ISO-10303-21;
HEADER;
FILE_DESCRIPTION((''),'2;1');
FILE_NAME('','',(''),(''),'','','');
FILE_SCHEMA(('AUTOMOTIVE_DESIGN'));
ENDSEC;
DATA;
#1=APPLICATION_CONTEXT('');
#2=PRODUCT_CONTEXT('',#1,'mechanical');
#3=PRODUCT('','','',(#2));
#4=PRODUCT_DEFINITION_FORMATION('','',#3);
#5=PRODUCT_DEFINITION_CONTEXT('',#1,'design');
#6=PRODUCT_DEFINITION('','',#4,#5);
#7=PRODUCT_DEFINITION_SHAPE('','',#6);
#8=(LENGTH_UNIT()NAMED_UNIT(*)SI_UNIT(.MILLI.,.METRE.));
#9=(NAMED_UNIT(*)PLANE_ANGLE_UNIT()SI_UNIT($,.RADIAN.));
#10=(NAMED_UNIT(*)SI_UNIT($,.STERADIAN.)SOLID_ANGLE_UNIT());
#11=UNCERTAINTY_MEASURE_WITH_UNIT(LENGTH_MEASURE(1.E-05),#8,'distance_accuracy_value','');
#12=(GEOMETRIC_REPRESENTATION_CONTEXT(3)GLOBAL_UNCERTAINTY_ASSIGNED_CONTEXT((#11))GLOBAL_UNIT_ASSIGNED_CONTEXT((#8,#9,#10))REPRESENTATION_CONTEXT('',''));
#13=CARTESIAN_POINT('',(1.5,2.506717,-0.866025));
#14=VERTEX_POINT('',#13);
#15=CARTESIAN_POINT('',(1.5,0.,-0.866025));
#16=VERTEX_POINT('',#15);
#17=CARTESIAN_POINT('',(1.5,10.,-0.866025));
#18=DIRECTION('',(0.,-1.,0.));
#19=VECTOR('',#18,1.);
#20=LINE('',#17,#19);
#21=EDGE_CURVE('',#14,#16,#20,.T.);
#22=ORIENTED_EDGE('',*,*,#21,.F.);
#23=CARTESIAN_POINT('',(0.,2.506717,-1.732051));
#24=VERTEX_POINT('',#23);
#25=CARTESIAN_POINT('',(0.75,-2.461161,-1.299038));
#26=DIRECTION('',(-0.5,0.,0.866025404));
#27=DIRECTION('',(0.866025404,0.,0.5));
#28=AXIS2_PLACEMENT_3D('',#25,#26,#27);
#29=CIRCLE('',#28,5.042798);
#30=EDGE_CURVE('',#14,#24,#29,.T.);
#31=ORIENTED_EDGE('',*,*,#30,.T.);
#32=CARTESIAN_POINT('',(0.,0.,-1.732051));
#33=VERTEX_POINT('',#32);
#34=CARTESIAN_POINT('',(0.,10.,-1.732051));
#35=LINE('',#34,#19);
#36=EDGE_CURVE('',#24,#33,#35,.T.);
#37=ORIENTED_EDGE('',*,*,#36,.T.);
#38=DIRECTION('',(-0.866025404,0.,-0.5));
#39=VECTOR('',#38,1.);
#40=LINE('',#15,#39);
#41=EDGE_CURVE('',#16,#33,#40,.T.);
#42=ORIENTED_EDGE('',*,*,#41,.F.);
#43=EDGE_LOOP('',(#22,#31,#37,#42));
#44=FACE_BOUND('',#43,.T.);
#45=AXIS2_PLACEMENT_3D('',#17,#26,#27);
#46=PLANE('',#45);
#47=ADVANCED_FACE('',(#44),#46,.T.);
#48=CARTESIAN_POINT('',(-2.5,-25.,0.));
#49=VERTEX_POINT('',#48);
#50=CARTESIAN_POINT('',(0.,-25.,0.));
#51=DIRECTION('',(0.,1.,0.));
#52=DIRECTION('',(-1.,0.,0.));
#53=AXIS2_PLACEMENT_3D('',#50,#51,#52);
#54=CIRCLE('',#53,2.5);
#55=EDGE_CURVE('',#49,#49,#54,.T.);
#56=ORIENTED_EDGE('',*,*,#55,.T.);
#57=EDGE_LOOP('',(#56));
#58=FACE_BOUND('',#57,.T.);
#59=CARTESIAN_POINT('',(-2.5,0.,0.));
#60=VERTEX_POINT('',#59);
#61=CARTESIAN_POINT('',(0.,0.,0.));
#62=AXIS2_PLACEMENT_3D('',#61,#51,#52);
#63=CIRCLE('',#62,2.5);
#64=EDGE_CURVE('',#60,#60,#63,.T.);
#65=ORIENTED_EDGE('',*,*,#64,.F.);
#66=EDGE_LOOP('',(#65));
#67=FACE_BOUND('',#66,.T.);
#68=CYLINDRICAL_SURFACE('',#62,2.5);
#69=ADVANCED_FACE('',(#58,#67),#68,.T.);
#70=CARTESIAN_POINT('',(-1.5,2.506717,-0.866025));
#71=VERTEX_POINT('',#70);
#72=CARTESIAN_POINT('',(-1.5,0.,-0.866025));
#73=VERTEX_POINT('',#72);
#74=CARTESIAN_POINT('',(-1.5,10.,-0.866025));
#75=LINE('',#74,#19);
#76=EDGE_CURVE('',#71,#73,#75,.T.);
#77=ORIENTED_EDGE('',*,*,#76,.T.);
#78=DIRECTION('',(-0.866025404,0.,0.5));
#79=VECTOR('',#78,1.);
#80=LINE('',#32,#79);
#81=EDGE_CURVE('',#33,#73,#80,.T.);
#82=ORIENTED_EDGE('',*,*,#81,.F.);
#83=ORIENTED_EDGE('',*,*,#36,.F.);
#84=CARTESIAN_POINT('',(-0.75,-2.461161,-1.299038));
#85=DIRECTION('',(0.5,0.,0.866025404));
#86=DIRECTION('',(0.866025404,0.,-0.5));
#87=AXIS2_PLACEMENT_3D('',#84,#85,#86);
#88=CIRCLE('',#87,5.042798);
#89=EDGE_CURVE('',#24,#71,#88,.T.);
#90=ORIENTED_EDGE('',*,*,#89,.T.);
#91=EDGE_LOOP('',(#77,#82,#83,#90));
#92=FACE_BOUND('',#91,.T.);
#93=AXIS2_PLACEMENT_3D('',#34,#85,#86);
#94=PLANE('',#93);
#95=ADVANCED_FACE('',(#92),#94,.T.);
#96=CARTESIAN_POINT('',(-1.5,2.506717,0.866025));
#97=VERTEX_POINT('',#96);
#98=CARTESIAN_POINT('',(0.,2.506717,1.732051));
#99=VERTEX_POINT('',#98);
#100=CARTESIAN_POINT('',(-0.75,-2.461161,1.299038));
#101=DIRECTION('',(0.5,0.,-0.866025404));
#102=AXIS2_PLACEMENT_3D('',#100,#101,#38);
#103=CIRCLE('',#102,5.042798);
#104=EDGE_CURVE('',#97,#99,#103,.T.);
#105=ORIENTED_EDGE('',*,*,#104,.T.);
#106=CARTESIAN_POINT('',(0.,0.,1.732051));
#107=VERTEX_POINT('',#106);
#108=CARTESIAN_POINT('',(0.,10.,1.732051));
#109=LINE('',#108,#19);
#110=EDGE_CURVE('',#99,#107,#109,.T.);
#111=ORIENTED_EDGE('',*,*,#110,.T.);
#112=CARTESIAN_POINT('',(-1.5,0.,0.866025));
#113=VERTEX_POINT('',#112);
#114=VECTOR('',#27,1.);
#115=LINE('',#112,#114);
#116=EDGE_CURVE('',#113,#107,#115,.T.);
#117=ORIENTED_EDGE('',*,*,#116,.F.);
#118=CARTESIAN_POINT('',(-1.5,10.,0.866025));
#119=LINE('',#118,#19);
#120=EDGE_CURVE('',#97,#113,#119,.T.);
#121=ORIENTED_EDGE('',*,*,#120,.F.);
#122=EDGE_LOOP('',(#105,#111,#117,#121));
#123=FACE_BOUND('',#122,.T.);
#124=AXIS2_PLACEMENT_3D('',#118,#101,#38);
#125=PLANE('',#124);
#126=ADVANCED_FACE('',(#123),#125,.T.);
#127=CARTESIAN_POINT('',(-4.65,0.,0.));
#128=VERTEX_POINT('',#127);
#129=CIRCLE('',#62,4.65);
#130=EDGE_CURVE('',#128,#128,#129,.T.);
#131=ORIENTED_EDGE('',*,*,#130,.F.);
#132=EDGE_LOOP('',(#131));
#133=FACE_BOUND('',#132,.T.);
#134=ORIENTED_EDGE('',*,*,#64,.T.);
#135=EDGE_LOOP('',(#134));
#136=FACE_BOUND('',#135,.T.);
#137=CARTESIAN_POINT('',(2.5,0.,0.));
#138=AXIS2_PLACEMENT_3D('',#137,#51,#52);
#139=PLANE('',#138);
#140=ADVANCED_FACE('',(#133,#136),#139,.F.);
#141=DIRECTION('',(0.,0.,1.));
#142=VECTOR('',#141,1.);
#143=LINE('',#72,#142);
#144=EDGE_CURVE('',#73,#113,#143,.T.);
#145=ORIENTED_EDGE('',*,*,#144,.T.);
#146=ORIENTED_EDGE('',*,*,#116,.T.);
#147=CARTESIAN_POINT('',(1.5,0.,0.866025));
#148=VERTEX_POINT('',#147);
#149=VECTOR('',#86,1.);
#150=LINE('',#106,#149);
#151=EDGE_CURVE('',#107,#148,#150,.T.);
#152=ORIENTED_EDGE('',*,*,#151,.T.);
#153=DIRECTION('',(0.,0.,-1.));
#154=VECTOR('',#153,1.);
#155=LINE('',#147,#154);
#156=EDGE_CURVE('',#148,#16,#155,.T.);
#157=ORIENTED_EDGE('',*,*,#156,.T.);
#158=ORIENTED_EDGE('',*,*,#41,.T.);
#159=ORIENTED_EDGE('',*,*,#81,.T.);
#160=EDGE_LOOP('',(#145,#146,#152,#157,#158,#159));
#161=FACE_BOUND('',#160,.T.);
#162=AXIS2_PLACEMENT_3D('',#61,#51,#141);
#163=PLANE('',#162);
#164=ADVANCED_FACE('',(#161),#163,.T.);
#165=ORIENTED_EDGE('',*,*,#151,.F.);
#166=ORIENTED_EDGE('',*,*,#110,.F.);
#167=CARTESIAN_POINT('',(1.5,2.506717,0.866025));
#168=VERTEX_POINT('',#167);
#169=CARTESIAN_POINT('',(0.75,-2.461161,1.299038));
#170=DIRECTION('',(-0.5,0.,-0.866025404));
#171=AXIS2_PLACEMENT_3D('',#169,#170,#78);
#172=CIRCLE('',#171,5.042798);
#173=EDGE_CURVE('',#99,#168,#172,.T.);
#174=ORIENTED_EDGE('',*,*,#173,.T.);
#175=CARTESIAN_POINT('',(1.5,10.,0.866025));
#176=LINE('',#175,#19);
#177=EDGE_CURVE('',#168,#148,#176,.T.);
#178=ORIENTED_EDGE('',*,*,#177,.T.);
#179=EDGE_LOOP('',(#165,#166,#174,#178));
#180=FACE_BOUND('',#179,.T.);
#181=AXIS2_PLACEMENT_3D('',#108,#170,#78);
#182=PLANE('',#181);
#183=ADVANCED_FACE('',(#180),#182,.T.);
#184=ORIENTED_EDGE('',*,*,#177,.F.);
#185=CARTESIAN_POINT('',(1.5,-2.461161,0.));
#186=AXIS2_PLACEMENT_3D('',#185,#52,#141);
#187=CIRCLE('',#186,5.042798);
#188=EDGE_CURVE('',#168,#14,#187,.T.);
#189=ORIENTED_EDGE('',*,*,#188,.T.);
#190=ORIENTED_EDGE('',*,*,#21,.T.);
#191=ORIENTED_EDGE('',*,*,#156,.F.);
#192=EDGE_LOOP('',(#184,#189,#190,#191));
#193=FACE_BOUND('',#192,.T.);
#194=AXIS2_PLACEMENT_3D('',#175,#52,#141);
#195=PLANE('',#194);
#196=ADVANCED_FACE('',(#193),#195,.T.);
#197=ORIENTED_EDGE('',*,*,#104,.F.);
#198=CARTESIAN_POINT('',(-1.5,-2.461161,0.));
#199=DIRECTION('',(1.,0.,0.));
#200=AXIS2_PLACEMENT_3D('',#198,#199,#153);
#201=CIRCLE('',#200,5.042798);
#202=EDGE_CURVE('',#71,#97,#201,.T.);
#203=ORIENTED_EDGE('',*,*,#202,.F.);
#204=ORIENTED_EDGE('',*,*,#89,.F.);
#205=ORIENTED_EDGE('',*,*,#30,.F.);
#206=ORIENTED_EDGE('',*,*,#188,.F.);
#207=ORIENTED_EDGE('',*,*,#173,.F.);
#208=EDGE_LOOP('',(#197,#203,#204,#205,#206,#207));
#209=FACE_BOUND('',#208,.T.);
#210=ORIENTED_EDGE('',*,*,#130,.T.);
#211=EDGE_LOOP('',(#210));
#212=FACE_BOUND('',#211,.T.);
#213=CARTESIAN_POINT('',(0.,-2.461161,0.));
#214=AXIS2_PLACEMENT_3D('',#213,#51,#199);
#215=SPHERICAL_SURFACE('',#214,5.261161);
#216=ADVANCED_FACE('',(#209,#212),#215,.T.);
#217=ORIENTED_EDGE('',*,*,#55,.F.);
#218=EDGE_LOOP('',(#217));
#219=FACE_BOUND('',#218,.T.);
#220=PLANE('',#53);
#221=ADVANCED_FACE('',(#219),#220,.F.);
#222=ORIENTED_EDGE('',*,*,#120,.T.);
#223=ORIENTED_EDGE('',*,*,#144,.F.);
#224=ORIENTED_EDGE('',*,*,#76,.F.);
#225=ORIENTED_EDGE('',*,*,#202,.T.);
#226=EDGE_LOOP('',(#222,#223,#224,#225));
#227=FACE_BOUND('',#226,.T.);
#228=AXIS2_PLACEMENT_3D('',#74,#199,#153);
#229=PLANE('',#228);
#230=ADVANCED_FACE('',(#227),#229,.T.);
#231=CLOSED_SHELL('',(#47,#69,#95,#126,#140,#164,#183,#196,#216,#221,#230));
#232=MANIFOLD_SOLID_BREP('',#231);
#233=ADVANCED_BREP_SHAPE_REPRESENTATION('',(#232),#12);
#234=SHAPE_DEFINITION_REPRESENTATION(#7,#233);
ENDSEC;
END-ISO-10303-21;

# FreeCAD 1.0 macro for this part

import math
import FreeCAD as App
import Part
import Sketcher
from FreeCAD import Vector
Q = App.Units.Quantity

doc = App.newDocument("Part")
body = doc.addObject("PartDesign::Body", "Body")

# Sketch on XY plane
sketch1 = body.newObject("Sketcher::SketchObject", "Sketch")
sketch1.AttachmentSupport = (doc.getObject("XY_Plane"), [""])
sketch1.MapMode = "FlatFace"
sketch1.addGeometry(Part.LineSegment(Vector(0, -25, 0), Vector(2.5, -25, 0)), False)
sketch1.addGeometry(Part.LineSegment(Vector(2.5, -25, 0), Vector(2.5, 0, 0)), False)
sketch1.addGeometry(Part.LineSegment(Vector(2.5, 0, 0), Vector(4.7, 0, 0)), False)
sketch1.addGeometry(Part.ArcOfCircle(Part.Circle(Vector(0, -2.5, 0), Vector(0, 0, 1), 5.3), math.radians(28), math.radians(90)), False)
sketch1.addGeometry(Part.LineSegment(Vector(0, 2.8, 0), Vector(0, -25, 0)), False)
sketch1.addConstraint(Sketcher.Constraint("Coincident", 0, 2, 1, 1))
sketch1.addConstraint(Sketcher.Constraint("Coincident", 1, 2, 2, 1))
sketch1.addConstraint(Sketcher.Constraint("Coincident", 2, 2, 3, 1))
sketch1.addConstraint(Sketcher.Constraint("Coincident", 3, 2, 4, 1))
sketch1.addConstraint(Sketcher.Constraint("Coincident", 4, 2, 0, 1))
sketch1.addConstraint(Sketcher.Constraint("Horizontal", 0))
sketch1.addConstraint(Sketcher.Constraint("Vertical", 1))
sketch1.addConstraint(Sketcher.Constraint("Horizontal", 2))
sketch1.addConstraint(Sketcher.Constraint("Vertical", 4))
sketch1.addConstraint(Sketcher.Constraint("PointOnObject", 3, 3, -2))
sketch1.addConstraint(Sketcher.Constraint("PointOnObject", 1, 2, -1))
sketch1.addConstraint(Sketcher.Constraint("PointOnObject", 3, 2, -2))
sketch1.addConstraint(Sketcher.Constraint("DistanceY", 1, 1, 1, 2, 25.0))
sketch1.addConstraint(Sketcher.Constraint("DistanceX", 0, 1, 0, 2, 2.5))
sketch1.addConstraint(Sketcher.Constraint("DistanceY", 4, 2, 4, 1, 27.8))
sketch1.addConstraint(Sketcher.Constraint("DistanceX", 2, 1, 2, 2, 2.15))
revolution = body.newObject("PartDesign::Revolution", "Revolution")
revolution.Profile = sketch1
revolution.ReferenceAxis = (sketch1, ["V_Axis"])
revolution.Angle = 360

# Sketch on XZ plane
sketch2 = body.newObject("Sketcher::SketchObject", "Sketch001")
sketch2.AttachmentSupport = (doc.getObject("XZ_Plane"), [""])
sketch2.MapMode = "FlatFace"
sketch2.addGeometry(Part.LineSegment(Vector(0, -1.7, 0), Vector(-1.5, -0.9, 0)), False)
sketch2.addGeometry(Part.LineSegment(Vector(-1.5, -0.9, 0), Vector(-1.5, 0.9, 0)), False)
sketch2.addGeometry(Part.LineSegment(Vector(-1.5, 0.9, 0), Vector(0, 1.7, 0)), False)
sketch2.addGeometry(Part.LineSegment(Vector(0, 1.7, 0), Vector(1.5, 0.9, 0)), False)
sketch2.addGeometry(Part.LineSegment(Vector(1.5, 0.9, 0), Vector(1.5, -0.9, 0)), False)
sketch2.addGeometry(Part.LineSegment(Vector(1.5, -0.9, 0), Vector(0, -1.7, 0)), False)
sketch2.addConstraint(Sketcher.Constraint("Coincident", 0, 2, 1, 1))
sketch2.addConstraint(Sketcher.Constraint("Coincident", 1, 2, 2, 1))
sketch2.addConstraint(Sketcher.Constraint("Coincident", 2, 2, 3, 1))
sketch2.addConstraint(Sketcher.Constraint("Coincident", 3, 2, 4, 1))
sketch2.addConstraint(Sketcher.Constraint("Coincident", 4, 2, 5, 1))
sketch2.addConstraint(Sketcher.Constraint("Coincident", 5, 2, 0, 1))
sketch2.addConstraint(Sketcher.Constraint("Vertical", 1))
sketch2.addConstraint(Sketcher.Constraint("Vertical", 4))
sketch2.addConstraint(Sketcher.Constraint("Symmetric", 0, 2, 3, 2, -1, 1))
sketch2.addConstraint(Sketcher.Constraint("Symmetric", 2, 2, 5, 2, -1, 1))
sketch2.addConstraint(Sketcher.Constraint("PointOnObject", 2, 2, -2))
sketch2.addConstraint(Sketcher.Constraint("Parallel", 2, 5))
sketch2.addConstraint(Sketcher.Constraint("Horizontal", 1, 2, 3, 2))
sketch2.addConstraint(Sketcher.Constraint("Angle", 0, Q("150 deg")))
sketch2.addConstraint(Sketcher.Constraint("DistanceX", 1, 2, 3, 2, 3.0))
sketch2.addConstraint(Sketcher.Constraint("DistanceY", 1, 1, 1, 2, 1.732051))
pocket1 = body.newObject("PartDesign::Pocket", "Pocket")
pocket1.Profile = sketch2
pocket1.Length = 10

doc.recompute()
